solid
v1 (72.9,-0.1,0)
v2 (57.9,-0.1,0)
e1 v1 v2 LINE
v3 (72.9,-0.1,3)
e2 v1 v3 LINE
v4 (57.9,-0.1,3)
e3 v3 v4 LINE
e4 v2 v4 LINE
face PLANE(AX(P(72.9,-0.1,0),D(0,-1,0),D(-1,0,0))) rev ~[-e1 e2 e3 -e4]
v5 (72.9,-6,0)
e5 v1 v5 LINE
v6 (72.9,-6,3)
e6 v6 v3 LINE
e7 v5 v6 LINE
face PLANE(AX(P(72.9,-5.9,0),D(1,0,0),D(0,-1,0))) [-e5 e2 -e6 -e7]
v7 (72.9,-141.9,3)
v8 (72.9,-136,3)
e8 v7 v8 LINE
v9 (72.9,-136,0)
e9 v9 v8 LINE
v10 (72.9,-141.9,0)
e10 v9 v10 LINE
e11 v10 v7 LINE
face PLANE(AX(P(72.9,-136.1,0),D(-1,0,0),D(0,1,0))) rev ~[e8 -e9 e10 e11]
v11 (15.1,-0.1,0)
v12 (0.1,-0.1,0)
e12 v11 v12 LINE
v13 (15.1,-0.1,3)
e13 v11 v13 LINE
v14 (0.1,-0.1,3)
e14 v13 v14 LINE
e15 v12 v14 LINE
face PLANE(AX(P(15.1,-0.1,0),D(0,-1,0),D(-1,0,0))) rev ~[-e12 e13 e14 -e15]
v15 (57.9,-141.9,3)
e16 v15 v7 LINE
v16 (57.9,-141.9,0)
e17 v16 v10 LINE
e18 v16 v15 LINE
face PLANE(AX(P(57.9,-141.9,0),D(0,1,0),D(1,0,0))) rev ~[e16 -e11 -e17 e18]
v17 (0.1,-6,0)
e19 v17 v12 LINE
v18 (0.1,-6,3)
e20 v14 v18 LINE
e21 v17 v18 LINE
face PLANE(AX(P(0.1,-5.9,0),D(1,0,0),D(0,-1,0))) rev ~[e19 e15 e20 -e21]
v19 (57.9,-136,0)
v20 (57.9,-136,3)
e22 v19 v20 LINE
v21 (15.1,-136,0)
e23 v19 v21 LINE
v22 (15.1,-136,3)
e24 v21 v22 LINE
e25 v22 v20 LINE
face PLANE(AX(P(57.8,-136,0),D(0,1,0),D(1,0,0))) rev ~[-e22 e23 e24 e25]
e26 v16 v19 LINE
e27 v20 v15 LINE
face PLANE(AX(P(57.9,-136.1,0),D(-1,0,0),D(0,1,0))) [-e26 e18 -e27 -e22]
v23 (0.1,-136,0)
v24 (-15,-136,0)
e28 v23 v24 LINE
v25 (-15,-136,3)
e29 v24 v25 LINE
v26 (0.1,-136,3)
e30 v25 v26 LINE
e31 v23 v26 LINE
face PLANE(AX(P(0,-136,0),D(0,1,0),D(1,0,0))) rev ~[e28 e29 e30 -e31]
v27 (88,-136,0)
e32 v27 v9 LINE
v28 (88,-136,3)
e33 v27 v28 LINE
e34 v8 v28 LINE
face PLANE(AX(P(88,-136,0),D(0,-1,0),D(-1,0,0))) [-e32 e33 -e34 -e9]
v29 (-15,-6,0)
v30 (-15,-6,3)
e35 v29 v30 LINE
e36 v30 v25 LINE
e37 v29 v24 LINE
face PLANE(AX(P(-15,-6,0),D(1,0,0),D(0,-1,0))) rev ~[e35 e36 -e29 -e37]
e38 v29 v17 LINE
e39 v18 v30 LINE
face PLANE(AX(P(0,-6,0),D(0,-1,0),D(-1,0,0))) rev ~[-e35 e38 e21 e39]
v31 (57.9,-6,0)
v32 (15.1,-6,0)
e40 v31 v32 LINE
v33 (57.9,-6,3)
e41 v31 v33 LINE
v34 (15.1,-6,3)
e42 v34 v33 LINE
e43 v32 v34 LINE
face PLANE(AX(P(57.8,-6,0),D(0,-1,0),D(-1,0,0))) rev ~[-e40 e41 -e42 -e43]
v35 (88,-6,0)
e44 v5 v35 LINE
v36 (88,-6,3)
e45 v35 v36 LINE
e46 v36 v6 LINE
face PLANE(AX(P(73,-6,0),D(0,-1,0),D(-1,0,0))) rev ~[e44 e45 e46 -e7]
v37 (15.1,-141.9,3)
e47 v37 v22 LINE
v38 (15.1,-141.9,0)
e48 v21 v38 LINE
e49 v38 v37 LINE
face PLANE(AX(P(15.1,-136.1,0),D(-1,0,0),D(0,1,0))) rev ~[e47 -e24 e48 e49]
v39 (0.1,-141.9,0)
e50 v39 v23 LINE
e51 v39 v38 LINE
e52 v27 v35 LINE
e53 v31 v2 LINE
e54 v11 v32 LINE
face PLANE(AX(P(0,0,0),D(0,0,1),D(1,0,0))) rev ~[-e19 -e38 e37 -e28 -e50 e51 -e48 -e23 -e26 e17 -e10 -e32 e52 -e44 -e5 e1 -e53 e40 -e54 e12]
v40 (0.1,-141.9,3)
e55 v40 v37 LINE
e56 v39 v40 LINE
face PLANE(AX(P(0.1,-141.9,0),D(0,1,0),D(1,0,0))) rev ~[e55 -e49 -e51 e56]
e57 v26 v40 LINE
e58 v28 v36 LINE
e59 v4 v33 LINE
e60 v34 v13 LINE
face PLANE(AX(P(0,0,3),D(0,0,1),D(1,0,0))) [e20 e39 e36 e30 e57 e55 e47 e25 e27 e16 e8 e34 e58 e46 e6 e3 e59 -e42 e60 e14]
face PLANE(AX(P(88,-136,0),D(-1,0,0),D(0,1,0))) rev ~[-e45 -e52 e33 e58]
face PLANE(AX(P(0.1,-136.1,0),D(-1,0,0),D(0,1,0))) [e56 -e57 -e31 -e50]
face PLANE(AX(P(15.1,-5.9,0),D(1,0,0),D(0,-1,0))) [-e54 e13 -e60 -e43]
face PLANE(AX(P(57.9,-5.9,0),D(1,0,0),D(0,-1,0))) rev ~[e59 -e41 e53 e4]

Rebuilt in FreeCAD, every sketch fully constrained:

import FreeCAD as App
import Part
import Sketcher

V = App.Vector


def add_polygon(sketch, points):
    """Adds a closed chain of lines whose ends are joined by coincident constraints."""
    first, n = sketch.GeometryCount, len(points)
    for a, b in zip(points, points[1:] + points[:1]):
        sketch.addGeometry(Part.LineSegment(App.Vector(*a, 0), App.Vector(*b, 0)), False)
    for i in range(n):
        sketch.addConstraint(Sketcher.Constraint("Coincident", first + i, 2, first + (i + 1) % n, 1))

doc = App.newDocument("Part")
params = doc.addObject("Spreadsheet::Sheet", "Params")
for row, (alias, value) in enumerate([
    ("sketch1_height", "130 mm"),
    ("sketch1_height2", "5.9 mm"),
    ("sketch1_width", "15 mm"),
    ("sketch1_width2", "15.1 mm"),
    ("pad1_length", "3 mm"),
], start=1):
    params.set(f"A{row}", alias)
    params.set(f"B{row}", "=" + value)
    params.setAlias(f"B{row}", alias)

body = doc.addObject("PartDesign::Body", "Body")

sketch1 = doc.addObject("Sketcher::SketchObject", "Sketch")
body.addObject(sketch1)
sketch1.AttachmentSupport = (doc.XY_Plane, [""])
sketch1.MapMode = "FlatFace"
add_polygon(sketch1, [(15, -6), (15, 0), (0, 0), (0, -6), (-15, -6), (-15, -136), (0, -136), (0, -142), (15, -142), (15, -136), (58, -136), (58, -142), (73, -142), (73, -136), (88, -136), (88, -6), (73, -6), (73, 0), (58, 0), (58, -6)])
sketch1.addConstraint([
    Sketcher.Constraint("Vertical", 0),
    Sketcher.Constraint("Horizontal", 1),
    Sketcher.Constraint("Vertical", 2),
    Sketcher.Constraint("Horizontal", 3),
    Sketcher.Constraint("Vertical", 4),
    Sketcher.Constraint("Horizontal", 5),
    Sketcher.Constraint("Vertical", 6),
    Sketcher.Constraint("Horizontal", 7),
    Sketcher.Constraint("Vertical", 8),
    Sketcher.Constraint("Horizontal", 9),
    Sketcher.Constraint("Vertical", 10),
    Sketcher.Constraint("Horizontal", 11),
    Sketcher.Constraint("Vertical", 12),
    Sketcher.Constraint("Horizontal", 13),
    Sketcher.Constraint("Vertical", 14),
    Sketcher.Constraint("Horizontal", 15),
    Sketcher.Constraint("Vertical", 16),
    Sketcher.Constraint("Horizontal", 17),
    Sketcher.Constraint("Vertical", 18),
    Sketcher.Constraint("Horizontal", 19),
    Sketcher.Constraint("Horizontal", 5, 2, 8, 2),
    Sketcher.Constraint("Horizontal", 7, 2, 10, 2),
    Sketcher.Constraint("Horizontal", 9, 2, 12, 2),
    Sketcher.Constraint("Horizontal", 3, 2, 14, 2),
    Sketcher.Constraint("Horizontal", 1, 2, 16, 2),
    Sketcher.Constraint("Horizontal", 15, 2, 18, 2),
    Sketcher.Constraint("Vertical", 2, 2, 5, 2),
    Sketcher.Constraint("Vertical", 0, 2, 7, 2),
    Sketcher.Constraint("Vertical", 12, 2, 15, 2),
    Sketcher.Constraint("Vertical", 10, 2, 17, 2),
    Sketcher.Constraint("Equal", 7, 11),
    Sketcher.Constraint("Equal", 5, 13),
    Sketcher.Constraint("Equal", 2, 6),
    Sketcher.Constraint("DistanceY", 4, 2, 4, 1, 130.0),
    Sketcher.Constraint("DistanceY", 0, 1, 0, 2, 5.9),
    Sketcher.Constraint("DistanceX", 3, 2, 14, 2, 103.0),
    Sketcher.Constraint("DistanceY", 0, 2, -1, 1, 0.1),
    Sketcher.Constraint("DistanceX", -1, 1, 1, 2, 0.1),
    Sketcher.Constraint("DistanceX", 1, 2, 1, 1, 15.0),
    Sketcher.Constraint("DistanceX", 3, 2, 3, 1, 15.1),
])
sketch1.setExpression("Constraints[53]", "Params.sketch1_height")
sketch1.setExpression("Constraints[54]", "Params.sketch1_height2")
sketch1.setExpression("Constraints[58]", "Params.sketch1_width")
sketch1.setExpression("Constraints[59]", "Params.sketch1_width2")
pad1 = doc.addObject("PartDesign::Pad", "Pad")
body.addObject(pad1)
pad1.Profile = sketch1
pad1.setExpression("Length", "Params.pad1_length")

doc.recompute()
